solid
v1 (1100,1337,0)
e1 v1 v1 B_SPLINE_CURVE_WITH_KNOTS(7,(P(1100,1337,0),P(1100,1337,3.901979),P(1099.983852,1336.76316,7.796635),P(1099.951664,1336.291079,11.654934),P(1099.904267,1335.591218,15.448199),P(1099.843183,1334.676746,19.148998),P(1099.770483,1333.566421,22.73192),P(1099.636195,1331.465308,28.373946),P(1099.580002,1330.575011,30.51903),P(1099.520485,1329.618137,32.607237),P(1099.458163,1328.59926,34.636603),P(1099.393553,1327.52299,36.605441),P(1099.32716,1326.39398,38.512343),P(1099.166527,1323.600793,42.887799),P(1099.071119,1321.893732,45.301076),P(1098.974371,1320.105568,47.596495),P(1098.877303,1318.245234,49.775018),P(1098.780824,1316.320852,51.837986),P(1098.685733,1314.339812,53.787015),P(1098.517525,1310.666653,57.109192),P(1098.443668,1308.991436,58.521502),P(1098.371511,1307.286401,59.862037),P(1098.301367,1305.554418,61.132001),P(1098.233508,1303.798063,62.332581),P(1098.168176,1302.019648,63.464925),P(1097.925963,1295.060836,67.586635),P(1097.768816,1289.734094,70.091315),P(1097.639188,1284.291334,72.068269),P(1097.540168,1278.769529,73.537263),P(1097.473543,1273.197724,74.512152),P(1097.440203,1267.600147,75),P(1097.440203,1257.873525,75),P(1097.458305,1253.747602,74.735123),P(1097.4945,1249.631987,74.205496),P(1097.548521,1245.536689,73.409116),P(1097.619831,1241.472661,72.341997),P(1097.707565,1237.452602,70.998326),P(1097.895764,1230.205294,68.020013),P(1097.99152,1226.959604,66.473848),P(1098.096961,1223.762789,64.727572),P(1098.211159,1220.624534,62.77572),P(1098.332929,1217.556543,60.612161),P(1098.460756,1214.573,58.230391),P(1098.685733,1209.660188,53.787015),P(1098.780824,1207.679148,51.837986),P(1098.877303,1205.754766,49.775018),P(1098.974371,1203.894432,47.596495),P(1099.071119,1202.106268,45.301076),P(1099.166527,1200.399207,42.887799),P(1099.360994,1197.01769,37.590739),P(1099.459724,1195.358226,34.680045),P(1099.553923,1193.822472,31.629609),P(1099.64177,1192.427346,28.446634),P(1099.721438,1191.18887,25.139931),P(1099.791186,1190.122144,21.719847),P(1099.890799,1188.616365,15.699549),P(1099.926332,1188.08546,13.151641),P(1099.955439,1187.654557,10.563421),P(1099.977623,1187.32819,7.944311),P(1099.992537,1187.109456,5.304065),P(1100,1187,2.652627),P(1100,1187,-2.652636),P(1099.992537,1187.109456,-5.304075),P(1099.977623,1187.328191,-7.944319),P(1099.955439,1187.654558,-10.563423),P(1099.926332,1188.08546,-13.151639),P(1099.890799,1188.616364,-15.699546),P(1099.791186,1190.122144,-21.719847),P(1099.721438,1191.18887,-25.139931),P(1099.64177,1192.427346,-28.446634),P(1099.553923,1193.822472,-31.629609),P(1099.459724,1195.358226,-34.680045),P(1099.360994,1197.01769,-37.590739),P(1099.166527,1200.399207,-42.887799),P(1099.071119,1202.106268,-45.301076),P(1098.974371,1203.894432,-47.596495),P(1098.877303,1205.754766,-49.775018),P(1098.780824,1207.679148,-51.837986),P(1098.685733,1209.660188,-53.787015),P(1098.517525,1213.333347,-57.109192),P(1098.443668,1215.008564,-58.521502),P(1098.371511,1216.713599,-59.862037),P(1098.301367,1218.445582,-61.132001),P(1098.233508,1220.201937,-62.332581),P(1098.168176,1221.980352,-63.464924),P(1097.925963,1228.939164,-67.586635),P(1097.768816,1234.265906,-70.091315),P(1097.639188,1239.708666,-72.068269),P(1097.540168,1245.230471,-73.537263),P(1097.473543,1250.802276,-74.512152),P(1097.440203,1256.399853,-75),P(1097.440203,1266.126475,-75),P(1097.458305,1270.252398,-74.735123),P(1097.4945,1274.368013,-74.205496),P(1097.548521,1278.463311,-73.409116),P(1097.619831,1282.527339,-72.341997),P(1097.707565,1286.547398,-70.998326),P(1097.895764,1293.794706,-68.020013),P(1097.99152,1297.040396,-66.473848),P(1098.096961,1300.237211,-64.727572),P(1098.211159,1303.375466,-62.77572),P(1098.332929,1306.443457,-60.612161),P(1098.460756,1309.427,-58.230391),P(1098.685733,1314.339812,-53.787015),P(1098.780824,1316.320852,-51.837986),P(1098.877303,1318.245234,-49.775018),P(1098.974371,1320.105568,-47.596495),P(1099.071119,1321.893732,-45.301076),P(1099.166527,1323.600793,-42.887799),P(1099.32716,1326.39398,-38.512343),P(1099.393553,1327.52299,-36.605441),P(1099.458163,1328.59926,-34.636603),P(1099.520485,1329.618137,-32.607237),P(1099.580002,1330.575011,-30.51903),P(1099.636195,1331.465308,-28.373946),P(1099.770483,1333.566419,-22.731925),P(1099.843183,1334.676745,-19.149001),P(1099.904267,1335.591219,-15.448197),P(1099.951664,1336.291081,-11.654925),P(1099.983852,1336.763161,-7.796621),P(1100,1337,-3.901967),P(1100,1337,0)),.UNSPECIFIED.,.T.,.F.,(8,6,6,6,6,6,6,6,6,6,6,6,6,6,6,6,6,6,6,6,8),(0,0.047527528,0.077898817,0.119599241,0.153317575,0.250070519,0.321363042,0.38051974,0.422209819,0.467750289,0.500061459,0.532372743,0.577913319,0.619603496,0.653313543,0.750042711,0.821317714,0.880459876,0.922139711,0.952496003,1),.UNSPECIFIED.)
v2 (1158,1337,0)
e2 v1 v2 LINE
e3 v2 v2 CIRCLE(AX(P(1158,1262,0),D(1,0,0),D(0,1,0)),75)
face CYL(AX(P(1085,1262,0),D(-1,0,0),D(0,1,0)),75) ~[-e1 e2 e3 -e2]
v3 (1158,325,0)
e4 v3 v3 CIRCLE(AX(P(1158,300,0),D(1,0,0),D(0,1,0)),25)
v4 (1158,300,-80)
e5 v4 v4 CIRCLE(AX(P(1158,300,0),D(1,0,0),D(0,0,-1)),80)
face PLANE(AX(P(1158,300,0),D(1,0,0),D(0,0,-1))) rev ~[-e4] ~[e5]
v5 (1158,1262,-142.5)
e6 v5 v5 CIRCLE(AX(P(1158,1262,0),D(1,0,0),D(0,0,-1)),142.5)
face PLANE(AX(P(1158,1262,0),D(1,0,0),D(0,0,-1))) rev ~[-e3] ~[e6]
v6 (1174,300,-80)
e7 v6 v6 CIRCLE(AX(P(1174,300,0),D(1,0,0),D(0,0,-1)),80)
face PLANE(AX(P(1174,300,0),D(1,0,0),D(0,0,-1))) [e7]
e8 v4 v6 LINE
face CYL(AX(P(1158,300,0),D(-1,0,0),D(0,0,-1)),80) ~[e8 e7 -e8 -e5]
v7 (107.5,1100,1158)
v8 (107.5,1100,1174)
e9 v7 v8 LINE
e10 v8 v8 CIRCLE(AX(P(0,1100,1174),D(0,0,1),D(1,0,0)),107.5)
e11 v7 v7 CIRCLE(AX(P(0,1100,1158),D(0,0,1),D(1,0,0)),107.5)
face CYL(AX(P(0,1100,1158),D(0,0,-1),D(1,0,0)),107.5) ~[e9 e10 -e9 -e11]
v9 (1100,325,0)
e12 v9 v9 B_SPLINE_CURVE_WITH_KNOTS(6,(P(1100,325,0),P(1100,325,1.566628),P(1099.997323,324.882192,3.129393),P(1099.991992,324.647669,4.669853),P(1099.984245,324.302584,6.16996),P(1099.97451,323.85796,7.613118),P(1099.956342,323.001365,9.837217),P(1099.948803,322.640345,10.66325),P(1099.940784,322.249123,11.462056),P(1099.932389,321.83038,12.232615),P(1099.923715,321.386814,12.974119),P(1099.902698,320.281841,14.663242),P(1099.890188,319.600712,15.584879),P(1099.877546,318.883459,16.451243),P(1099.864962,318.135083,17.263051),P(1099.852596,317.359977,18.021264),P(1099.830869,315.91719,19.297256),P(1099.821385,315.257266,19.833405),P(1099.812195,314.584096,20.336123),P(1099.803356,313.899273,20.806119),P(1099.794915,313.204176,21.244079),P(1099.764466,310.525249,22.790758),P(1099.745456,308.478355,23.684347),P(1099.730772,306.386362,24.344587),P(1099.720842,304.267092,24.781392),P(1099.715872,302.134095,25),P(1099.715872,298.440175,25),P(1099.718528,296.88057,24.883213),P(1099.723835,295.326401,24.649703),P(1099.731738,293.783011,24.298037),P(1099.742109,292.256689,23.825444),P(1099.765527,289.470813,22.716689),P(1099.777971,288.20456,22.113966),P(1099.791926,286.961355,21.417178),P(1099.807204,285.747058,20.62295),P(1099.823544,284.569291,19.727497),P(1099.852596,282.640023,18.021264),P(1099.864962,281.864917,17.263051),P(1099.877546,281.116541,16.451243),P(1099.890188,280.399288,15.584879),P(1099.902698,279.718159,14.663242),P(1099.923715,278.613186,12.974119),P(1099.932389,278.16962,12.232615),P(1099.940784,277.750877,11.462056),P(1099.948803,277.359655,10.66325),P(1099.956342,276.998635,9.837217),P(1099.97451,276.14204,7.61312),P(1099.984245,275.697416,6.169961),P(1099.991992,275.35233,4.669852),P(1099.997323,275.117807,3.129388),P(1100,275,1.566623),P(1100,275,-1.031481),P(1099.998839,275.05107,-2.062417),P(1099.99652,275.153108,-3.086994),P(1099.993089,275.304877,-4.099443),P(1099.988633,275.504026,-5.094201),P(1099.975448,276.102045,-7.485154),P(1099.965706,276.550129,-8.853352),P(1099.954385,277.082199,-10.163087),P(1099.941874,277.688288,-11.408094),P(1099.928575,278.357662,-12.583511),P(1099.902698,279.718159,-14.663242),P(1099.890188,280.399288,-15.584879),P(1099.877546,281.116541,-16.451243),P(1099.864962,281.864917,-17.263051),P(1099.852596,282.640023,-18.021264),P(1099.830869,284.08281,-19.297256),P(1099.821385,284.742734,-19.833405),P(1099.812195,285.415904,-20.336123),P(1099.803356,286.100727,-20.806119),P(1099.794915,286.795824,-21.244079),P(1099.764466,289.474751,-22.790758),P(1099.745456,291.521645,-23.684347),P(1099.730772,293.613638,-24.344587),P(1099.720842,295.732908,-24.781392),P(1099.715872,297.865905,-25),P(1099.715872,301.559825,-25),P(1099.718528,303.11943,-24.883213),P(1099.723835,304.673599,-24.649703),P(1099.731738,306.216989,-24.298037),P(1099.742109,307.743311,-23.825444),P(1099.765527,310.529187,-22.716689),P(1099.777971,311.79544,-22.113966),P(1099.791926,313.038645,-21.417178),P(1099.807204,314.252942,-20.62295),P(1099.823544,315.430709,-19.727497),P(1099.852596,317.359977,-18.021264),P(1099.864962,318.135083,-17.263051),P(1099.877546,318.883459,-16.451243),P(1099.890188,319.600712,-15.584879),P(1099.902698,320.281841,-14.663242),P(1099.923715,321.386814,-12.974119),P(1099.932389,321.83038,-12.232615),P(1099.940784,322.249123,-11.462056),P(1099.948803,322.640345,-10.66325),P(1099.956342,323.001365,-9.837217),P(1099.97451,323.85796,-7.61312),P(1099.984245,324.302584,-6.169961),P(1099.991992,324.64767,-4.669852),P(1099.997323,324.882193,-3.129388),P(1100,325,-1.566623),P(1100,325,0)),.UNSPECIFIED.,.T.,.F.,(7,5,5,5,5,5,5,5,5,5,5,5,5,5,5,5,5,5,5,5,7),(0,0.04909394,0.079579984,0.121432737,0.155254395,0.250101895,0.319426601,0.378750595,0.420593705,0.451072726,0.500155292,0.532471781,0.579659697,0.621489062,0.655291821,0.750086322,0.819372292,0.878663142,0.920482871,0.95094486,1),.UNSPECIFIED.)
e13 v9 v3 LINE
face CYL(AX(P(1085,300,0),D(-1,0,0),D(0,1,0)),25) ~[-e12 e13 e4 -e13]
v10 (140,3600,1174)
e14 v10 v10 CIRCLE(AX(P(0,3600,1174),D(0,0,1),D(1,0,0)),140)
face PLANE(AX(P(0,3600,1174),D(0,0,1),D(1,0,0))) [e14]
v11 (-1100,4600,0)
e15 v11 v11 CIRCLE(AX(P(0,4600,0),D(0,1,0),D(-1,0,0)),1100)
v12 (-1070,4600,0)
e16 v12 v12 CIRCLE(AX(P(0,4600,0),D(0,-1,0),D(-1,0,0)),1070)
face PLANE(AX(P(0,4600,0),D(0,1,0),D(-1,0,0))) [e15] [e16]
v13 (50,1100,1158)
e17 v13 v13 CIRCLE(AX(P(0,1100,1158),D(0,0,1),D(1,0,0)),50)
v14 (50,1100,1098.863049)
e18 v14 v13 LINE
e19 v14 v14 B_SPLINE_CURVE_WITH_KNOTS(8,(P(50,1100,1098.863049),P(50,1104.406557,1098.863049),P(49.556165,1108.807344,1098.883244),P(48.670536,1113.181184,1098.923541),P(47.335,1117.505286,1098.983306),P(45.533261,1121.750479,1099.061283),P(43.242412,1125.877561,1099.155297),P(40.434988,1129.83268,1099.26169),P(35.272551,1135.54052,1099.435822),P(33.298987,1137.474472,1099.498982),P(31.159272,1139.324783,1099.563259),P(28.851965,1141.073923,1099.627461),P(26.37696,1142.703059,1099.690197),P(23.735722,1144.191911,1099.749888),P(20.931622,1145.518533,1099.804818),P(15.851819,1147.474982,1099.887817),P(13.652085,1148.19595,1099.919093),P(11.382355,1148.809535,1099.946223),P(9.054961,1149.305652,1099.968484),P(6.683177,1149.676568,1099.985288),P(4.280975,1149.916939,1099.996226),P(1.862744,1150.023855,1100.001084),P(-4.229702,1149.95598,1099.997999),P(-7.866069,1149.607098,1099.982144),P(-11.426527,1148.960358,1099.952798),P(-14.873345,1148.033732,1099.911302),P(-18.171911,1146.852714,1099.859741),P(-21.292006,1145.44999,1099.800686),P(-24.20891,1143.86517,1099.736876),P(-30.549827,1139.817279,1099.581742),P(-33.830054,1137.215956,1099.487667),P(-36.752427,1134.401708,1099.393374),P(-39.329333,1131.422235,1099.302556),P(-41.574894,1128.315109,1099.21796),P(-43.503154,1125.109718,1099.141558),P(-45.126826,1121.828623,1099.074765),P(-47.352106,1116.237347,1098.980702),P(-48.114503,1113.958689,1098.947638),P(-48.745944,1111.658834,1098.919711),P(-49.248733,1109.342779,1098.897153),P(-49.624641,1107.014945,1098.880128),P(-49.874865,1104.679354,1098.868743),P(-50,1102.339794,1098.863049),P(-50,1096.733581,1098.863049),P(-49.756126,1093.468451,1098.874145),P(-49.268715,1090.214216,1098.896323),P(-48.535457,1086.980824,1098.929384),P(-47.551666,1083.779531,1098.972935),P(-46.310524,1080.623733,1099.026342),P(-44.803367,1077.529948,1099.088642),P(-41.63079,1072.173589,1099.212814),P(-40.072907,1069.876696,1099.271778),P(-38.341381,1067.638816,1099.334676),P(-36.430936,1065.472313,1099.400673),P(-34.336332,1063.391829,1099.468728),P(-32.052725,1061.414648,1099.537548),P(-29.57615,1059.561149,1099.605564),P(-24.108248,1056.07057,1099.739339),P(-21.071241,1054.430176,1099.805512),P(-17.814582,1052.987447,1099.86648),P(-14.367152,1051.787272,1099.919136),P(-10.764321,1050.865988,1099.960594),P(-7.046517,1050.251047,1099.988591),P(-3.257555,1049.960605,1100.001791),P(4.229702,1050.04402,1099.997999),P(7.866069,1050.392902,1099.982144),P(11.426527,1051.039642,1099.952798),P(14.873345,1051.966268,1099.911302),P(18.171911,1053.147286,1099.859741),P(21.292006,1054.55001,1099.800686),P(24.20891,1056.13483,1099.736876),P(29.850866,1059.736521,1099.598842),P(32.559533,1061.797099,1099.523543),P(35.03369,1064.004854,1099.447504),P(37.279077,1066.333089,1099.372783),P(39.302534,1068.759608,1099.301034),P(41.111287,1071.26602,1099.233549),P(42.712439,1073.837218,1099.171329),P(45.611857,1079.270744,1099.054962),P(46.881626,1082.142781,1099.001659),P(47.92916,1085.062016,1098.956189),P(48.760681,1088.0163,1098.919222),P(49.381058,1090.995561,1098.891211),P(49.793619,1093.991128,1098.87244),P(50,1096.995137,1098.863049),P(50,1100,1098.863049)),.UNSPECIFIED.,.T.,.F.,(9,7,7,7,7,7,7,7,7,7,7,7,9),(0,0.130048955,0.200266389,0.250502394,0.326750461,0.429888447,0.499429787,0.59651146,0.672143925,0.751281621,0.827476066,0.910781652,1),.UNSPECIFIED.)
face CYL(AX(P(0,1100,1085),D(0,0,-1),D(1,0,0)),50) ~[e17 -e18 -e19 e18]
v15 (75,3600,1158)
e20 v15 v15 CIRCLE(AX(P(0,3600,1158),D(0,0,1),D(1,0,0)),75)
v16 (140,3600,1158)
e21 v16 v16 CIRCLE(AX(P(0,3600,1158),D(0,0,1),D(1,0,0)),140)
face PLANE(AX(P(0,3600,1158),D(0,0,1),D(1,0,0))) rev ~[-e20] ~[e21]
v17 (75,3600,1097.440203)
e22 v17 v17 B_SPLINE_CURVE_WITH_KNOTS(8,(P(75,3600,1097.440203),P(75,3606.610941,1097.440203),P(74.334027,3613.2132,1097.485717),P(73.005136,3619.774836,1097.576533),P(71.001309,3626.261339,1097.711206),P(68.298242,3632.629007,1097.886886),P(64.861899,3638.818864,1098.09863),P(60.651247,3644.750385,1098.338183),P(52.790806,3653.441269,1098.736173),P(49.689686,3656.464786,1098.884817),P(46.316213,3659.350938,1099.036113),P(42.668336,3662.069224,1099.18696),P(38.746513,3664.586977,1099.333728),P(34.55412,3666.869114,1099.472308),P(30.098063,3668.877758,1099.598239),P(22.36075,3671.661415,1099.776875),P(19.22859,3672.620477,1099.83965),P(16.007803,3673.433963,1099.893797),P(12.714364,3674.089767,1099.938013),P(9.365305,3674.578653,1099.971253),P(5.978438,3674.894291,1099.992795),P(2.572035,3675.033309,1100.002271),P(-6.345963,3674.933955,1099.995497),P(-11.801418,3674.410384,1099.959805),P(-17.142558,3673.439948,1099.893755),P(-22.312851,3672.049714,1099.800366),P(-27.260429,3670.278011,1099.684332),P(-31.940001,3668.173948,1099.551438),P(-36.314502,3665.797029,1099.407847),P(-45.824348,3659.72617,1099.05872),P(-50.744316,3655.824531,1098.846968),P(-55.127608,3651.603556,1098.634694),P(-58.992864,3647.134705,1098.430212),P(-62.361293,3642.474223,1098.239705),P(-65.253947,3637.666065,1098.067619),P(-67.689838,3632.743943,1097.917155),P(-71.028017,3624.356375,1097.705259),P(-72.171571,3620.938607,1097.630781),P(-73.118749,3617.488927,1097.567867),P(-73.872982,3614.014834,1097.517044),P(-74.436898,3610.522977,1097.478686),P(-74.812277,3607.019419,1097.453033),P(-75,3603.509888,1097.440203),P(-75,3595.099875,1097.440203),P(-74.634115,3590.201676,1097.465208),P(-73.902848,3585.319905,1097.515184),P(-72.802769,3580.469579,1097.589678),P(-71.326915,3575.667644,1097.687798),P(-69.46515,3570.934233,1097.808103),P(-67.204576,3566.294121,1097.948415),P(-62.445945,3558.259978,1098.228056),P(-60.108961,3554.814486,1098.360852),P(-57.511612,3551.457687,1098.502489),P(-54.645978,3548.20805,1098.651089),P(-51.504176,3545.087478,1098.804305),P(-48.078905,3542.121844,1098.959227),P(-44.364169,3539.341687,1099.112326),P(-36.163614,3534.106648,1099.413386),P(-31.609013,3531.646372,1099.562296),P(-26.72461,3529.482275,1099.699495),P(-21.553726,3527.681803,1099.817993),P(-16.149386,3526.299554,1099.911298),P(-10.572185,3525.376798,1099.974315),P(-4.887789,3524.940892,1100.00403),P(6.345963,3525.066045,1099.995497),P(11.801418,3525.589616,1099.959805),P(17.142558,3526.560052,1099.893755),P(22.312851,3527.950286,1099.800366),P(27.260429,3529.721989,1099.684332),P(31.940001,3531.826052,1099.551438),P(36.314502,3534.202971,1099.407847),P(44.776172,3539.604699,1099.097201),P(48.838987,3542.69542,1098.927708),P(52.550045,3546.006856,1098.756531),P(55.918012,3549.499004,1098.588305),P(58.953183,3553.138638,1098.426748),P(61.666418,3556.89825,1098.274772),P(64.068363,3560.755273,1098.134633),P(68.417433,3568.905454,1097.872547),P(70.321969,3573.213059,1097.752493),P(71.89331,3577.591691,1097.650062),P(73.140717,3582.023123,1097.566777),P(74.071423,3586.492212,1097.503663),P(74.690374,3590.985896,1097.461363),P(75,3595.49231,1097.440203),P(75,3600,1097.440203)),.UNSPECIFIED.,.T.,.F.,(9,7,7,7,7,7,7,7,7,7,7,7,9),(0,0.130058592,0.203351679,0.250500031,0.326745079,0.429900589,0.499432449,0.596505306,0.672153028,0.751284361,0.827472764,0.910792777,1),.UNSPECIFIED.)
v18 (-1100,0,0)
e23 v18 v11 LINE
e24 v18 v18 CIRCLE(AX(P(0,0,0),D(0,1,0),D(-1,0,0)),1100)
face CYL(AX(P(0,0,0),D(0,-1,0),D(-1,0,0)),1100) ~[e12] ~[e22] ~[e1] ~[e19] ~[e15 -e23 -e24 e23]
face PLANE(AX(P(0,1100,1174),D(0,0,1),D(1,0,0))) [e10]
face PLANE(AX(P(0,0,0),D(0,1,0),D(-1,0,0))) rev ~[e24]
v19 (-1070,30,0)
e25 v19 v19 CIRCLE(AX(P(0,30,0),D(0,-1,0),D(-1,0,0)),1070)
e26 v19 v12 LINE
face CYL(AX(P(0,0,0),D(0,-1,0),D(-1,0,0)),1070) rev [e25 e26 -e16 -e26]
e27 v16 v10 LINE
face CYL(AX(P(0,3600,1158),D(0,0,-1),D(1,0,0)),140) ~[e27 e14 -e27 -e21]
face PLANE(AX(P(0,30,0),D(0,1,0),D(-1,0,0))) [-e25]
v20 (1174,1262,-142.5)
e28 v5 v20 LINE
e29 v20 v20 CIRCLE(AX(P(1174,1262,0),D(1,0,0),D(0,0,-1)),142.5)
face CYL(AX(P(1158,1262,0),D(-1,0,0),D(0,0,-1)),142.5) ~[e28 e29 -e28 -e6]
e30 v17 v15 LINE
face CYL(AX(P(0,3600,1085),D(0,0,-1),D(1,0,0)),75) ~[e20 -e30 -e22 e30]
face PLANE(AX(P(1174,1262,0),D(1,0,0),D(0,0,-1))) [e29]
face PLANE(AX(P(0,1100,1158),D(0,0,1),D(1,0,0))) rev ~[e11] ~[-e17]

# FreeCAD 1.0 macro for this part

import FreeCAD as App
import Part
import Sketcher

V = App.Vector
Q = App.Units.Quantity


def faces_at(feature, points):
    """Names of the faces that lie closest to the given points."""
    faces = feature.Shape.Faces
    near = lambda p: min(range(len(faces)), key=lambda i: faces[i].distToShape(Part.Vertex(*p))[0])
    return sorted({f"Face{near(p) + 1}" for p in points})

doc = App.newDocument("Part")
body = doc.addObject("PartDesign::Body", "Body")

# Sketch on XZ plane
sketch1 = body.newObject("Sketcher::SketchObject", "Sketch")
sketch1.AttachmentSupport = (doc.getObject("XZ_Plane"), [""])
sketch1.MapMode = "FlatFace"
sketch1.addGeometry(Part.Circle(V(0, 0, 0), V(0, 0, 1), 1100), False)
sketch1.addConstraint([
    Sketcher.Constraint("Coincident", 0, 3, -1, 1),
    Sketcher.Constraint("Diameter", 0, Q("2200 mm")),
])
pad1 = body.newObject("PartDesign::Pad", "Pad")
pad1.Profile = sketch1
pad1.Length = 4600
pad1.Reversed = True
doc.recompute()

thickness = body.newObject("PartDesign::Thickness", "Thickness")
thickness.Base = (pad1, faces_at(pad1, [(308.798, 4600, -93.611)]))
thickness.Value = 30
thickness.Reversed = True
thickness.Join = "Intersection"

# Sketch on XY plane
sketch2 = body.newObject("Sketcher::SketchObject", "Sketch001")
sketch2.AttachmentSupport = (doc.getObject("XY_Plane"), [""])
sketch2.MapMode = "FlatFace"
sketch2.AttachmentOffset = App.Placement(V(0, 0, 1085), App.Rotation())
sketch2.addGeometry(Part.Circle(V(0, 1100, 0), V(0, 0, 1), 50), False)
sketch2.addConstraint([
    Sketcher.Constraint("PointOnObject", 0, 3, -2),
    Sketcher.Constraint("Diameter", 0, Q("100 mm")),
    Sketcher.Constraint("DistanceY", -1, 1, 0, 3, Q("1100 mm")),
])
pad2 = body.newObject("PartDesign::Pad", "Pad001")
pad2.Profile = sketch2
pad2.Length = 73

# Sketch on XY plane
sketch3 = body.newObject("Sketcher::SketchObject", "Sketch002")
sketch3.AttachmentSupport = (doc.getObject("XY_Plane"), [""])
sketch3.MapMode = "FlatFace"
sketch3.AttachmentOffset = App.Placement(V(0, 0, 1085), App.Rotation())
sketch3.addGeometry(Part.Circle(V(0, 3600, 0), V(0, 0, 1), 75), False)
sketch3.addConstraint([
    Sketcher.Constraint("PointOnObject", 0, 3, -2),
    Sketcher.Constraint("Diameter", 0, Q("150 mm")),
    Sketcher.Constraint("DistanceY", -1, 1, 0, 3, Q("3600 mm")),
])
pad3 = body.newObject("PartDesign::Pad", "Pad002")
pad3.Profile = sketch3
pad3.Length = 73

# Sketch on YZ plane
sketch4 = body.newObject("Sketcher::SketchObject", "Sketch003")
sketch4.AttachmentSupport = (doc.getObject("YZ_Plane"), [""])
sketch4.MapMode = "FlatFace"
sketch4.AttachmentOffset = App.Placement(V(0, 0, 1085), App.Rotation())
sketch4.addGeometry(Part.Circle(V(1262, 0, 0), V(0, 0, 1), 75), False)
sketch4.addConstraint([
    Sketcher.Constraint("PointOnObject", 0, 3, -1),
    Sketcher.Constraint("Diameter", 0, Q("150 mm")),
    Sketcher.Constraint("DistanceX", -1, 1, 0, 3, Q("1262 mm")),
])
pad4 = body.newObject("PartDesign::Pad", "Pad003")
pad4.Profile = sketch4
pad4.Length = 73

# Sketch on YZ plane
sketch5 = body.newObject("Sketcher::SketchObject", "Sketch004")
sketch5.AttachmentSupport = (doc.getObject("YZ_Plane"), [""])
sketch5.MapMode = "FlatFace"
sketch5.AttachmentOffset = App.Placement(V(0, 0, 1085), App.Rotation())
sketch5.addGeometry(Part.Circle(V(300, 0, 0), V(0, 0, 1), 25), False)
sketch5.addConstraint([
    Sketcher.Constraint("PointOnObject", 0, 3, -1),
    Sketcher.Constraint("Diameter", 0, Q("50 mm")),
    Sketcher.Constraint("DistanceX", -1, 1, 0, 3, Q("300 mm")),
])
pad5 = body.newObject("PartDesign::Pad", "Pad004")
pad5.Profile = sketch5
pad5.Length = 73

# Sketch on XY plane
sketch6 = body.newObject("Sketcher::SketchObject", "Sketch005")
sketch6.AttachmentSupport = (doc.getObject("XY_Plane"), [""])
sketch6.MapMode = "FlatFace"
sketch6.AttachmentOffset = App.Placement(V(0, 0, 1158), App.Rotation())
sketch6.addGeometry(Part.Circle(V(0, 1100, 0), V(0, 0, 1), 107.5), False)
sketch6.addConstraint([
    Sketcher.Constraint("PointOnObject", 0, 3, -2),
    Sketcher.Constraint("Diameter", 0, Q("215 mm")),
    Sketcher.Constraint("DistanceY", -1, 1, 0, 3, Q("1100 mm")),
])
pad6 = body.newObject("PartDesign::Pad", "Pad005")
pad6.Profile = sketch6
pad6.Length = 16

# Sketch on XY plane
sketch7 = body.newObject("Sketcher::SketchObject", "Sketch006")
sketch7.AttachmentSupport = (doc.getObject("XY_Plane"), [""])
sketch7.MapMode = "FlatFace"
sketch7.AttachmentOffset = App.Placement(V(0, 0, 1158), App.Rotation())
sketch7.addGeometry(Part.Circle(V(0, 3600, 0), V(0, 0, 1), 140), False)
sketch7.addConstraint([
    Sketcher.Constraint("PointOnObject", 0, 3, -2),
    Sketcher.Constraint("Diameter", 0, Q("280 mm")),
    Sketcher.Constraint("DistanceY", -1, 1, 0, 3, Q("3600 mm")),
])
pad7 = body.newObject("PartDesign::Pad", "Pad006")
pad7.Profile = sketch7
pad7.Length = 16

# Sketch on YZ plane
sketch8 = body.newObject("Sketcher::SketchObject", "Sketch007")
sketch8.AttachmentSupport = (doc.getObject("YZ_Plane"), [""])
sketch8.MapMode = "FlatFace"
sketch8.AttachmentOffset = App.Placement(V(0, 0, 1158), App.Rotation())
sketch8.addGeometry(Part.Circle(V(300, 0, 0), V(0, 0, 1), 80), False)
sketch8.addConstraint([
    Sketcher.Constraint("PointOnObject", 0, 3, -1),
    Sketcher.Constraint("Diameter", 0, Q("160 mm")),
    Sketcher.Constraint("DistanceX", -1, 1, 0, 3, Q("300 mm")),
])
pad8 = body.newObject("PartDesign::Pad", "Pad007")
pad8.Profile = sketch8
pad8.Length = 16

# Sketch on YZ plane
sketch9 = body.newObject("Sketcher::SketchObject", "Sketch008")
sketch9.AttachmentSupport = (doc.getObject("YZ_Plane"), [""])
sketch9.MapMode = "FlatFace"
sketch9.AttachmentOffset = App.Placement(V(0, 0, 1158), App.Rotation())
sketch9.addGeometry(Part.Circle(V(1262, 0, 0), V(0, 0, 1), 142.5), False)
sketch9.addConstraint([
    Sketcher.Constraint("PointOnObject", 0, 3, -1),
    Sketcher.Constraint("Diameter", 0, Q("285 mm")),
    Sketcher.Constraint("DistanceX", -1, 1, 0, 3, Q("1262 mm")),
])
pad9 = body.newObject("PartDesign::Pad", "Pad008")
pad9.Profile = sketch9
pad9.Length = 16

doc.recompute()
